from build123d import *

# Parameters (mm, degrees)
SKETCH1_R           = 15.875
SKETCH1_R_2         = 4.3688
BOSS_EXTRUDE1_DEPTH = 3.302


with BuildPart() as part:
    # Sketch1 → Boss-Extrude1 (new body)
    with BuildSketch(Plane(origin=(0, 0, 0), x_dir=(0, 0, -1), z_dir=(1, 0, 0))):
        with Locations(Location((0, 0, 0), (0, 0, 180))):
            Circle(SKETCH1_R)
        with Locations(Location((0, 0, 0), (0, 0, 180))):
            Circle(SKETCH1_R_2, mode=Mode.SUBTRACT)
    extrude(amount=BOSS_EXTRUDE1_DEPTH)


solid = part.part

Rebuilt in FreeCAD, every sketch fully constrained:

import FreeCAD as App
import Part
import Sketcher
from FreeCAD import Vector
Q = App.Units.Quantity

doc = App.newDocument("Part")
body = doc.addObject("PartDesign::Body", "Body")

# Sketch on YZ plane
sketch1 = body.newObject("Sketcher::SketchObject", "Sketch")
sketch1.AttachmentSupport = (doc.getObject("YZ_Plane"), [""])
sketch1.MapMode = "FlatFace"
sketch1.addGeometry([
    Part.Circle(Vector(0, 0, 0), Vector(0, 0, 1), 15.9),
    Part.Circle(Vector(0, 0, 0), Vector(0, 0, 1), 4.4),
], False)
sketch1.addConstraint([
    Sketcher.Constraint("Coincident", 0, 3, -1, 1),
    Sketcher.Constraint("Coincident", 1, 3, -1, 1),
    Sketcher.Constraint("Diameter", 0, Q("1.25 in")),
    Sketcher.Constraint("Diameter", 1, Q("0.344 in")),
])
pad1 = body.newObject("PartDesign::Pad", "Pad")
pad1.Profile = sketch1
pad1.Length = Q("0.13 in")

doc.recompute()
